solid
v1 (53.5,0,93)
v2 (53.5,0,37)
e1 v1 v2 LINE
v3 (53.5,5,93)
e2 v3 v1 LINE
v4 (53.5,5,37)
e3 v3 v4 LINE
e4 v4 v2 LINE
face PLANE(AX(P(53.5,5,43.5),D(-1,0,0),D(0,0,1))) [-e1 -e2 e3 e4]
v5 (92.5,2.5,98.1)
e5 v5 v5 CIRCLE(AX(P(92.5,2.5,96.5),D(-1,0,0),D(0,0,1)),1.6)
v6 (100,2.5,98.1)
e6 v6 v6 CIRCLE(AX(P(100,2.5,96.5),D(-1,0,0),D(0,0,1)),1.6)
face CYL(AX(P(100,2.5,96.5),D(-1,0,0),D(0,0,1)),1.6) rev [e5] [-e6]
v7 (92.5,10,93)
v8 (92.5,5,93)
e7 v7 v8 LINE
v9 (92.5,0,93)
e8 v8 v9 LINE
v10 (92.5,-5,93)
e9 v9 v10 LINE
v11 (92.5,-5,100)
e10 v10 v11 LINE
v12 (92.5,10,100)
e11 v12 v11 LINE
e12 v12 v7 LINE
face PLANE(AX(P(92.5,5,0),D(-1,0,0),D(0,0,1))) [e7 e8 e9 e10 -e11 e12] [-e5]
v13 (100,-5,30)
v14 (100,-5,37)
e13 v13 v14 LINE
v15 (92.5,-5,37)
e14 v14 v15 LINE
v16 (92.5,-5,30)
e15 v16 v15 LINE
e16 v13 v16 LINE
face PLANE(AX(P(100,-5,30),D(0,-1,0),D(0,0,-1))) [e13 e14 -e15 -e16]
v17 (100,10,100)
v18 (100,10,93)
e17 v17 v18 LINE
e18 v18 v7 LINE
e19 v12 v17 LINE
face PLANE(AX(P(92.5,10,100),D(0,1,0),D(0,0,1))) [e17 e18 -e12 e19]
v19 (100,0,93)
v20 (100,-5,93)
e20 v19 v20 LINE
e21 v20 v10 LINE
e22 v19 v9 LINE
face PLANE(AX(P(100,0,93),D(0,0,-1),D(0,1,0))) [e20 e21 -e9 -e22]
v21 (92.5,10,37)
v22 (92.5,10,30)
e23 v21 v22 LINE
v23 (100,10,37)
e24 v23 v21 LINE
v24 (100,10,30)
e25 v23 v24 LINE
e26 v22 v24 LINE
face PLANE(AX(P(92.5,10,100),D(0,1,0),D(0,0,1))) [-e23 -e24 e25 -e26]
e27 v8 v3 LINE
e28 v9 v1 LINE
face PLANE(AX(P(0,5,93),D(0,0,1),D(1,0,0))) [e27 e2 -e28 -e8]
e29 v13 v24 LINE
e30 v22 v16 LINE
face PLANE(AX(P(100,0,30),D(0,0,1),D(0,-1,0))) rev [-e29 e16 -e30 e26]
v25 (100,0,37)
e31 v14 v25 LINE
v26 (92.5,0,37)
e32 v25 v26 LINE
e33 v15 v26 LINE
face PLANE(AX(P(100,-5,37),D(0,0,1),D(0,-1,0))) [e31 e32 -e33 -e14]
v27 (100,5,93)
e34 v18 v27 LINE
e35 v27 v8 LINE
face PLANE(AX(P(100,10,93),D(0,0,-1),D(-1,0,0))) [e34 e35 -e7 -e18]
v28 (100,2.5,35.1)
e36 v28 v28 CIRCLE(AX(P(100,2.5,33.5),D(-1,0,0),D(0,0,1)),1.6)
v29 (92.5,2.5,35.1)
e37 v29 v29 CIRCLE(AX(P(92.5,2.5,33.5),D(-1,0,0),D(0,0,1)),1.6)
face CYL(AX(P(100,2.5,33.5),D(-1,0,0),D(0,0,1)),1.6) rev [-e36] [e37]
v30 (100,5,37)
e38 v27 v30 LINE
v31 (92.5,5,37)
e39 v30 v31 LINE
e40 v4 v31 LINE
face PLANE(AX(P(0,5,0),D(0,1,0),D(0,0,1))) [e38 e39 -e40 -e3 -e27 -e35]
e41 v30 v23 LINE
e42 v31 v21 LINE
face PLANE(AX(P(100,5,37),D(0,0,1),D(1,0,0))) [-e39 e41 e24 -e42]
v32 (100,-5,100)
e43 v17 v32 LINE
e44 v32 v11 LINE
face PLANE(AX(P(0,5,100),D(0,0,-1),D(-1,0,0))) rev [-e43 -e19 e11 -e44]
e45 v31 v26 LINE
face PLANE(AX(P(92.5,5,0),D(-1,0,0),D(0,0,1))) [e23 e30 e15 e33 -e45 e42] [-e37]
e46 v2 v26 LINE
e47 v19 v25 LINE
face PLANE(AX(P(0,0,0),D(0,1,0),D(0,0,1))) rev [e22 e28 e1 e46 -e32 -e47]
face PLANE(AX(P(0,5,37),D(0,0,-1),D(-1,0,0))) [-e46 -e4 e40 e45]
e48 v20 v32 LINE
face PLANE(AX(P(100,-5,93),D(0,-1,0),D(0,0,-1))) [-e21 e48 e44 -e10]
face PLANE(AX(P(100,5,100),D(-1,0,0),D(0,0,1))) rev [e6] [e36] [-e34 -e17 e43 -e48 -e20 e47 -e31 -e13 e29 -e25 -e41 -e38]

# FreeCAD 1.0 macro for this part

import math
import FreeCAD as App
import Part
import Sketcher
from FreeCAD import Vector


def add_polygon(sketch, points):
    """Adds a closed chain of lines whose ends are joined by coincident constraints."""
    first, n = sketch.GeometryCount, len(points)
    for a, b in zip(points, points[1:] + points[:1]):
        sketch.addGeometry(Part.LineSegment(App.Vector(*a, 0), App.Vector(*b, 0)), False)
    for i in range(n):
        sketch.addConstraint(Sketcher.Constraint("Coincident", first + i, 2, first + (i + 1) % n, 1))

doc = App.newDocument("Part")
params = doc.addObject("Spreadsheet::Sheet", "Params")
for row, (alias, value) in enumerate([
    ("sketch1_width", "100 mm"),
    ("pad1_length", "5 mm"),
    ("sketch2_width", "5 mm"),
    ("sketch2_height", "30 mm"),
    ("pocket1_length", "100 mm"),
    ("sketch3_height", "70 mm"),
    ("sketch3_width", "53.5 mm"),
    ("pocket2_length", "5 mm"),
    ("sketch4_width", "39 mm"),
    ("sketch4_height", "7 mm"),
    ("pocket3_length", "5 mm"),
    ("sketch5_height", "5 mm"),
    ("sketch5_width", "7.5 mm"),
    ("pad2_length", "70 mm"),
    ("sketch6_width", "5 mm"),
    ("sketch6_height", "56 mm"),
    ("pocket4_length", "7.5 mm"),
    ("sketch7_width", "5 mm"),
    ("sketch7_height", "7 mm"),
    ("pad3_length", "7.5 mm"),
    ("sketch8_radius", "1.6 mm"),
    ("pocket5_length", "7.5 mm"),
], start=1):
    params.set(f"A{row}", alias)
    params.set(f"B{row}", "=" + value)
    params.setAlias(f"B{row}", alias)

body = doc.addObject("PartDesign::Body", "Body")

# Sketch on XZ plane
sketch1 = body.newObject("Sketcher::SketchObject", "Sketch")
sketch1.AttachmentSupport = (doc.getObject("XZ_Plane"), [""])
sketch1.MapMode = "FlatFace"
add_polygon(sketch1, [(0, 0), (0, 100), (100, 100), (100, 0)])  # lines 0-3
sketch1.addConstraint(Sketcher.Constraint("Vertical", 0))
sketch1.addConstraint(Sketcher.Constraint("Horizontal", 1))
sketch1.addConstraint(Sketcher.Constraint("Vertical", 2))
sketch1.addConstraint(Sketcher.Constraint("Horizontal", 3))
sketch1.addConstraint(Sketcher.Constraint("Coincident", 3, 2, -1, 1))
sketch1.addConstraint(Sketcher.Constraint("Equal", 3, 0))
sketch1.addConstraint(Sketcher.Constraint("DistanceX", 1, 1, 1, 2, 100.0))
sketch1.setExpression("Constraints[10]", "Params.sketch1_width")
pad1 = body.newObject("PartDesign::Pad", "Pad")
pad1.Profile = sketch1
pad1.setExpression("Length", "Params.pad1_length")
pad1.Reversed = True

# Sketch on YZ plane
sketch2 = body.newObject("Sketcher::SketchObject", "Sketch001")
sketch2.AttachmentSupport = (doc.getObject("YZ_Plane"), [""])
sketch2.MapMode = "FlatFace"
add_polygon(sketch2, [(5, 0), (0, 0), (0, 30), (5, 30)])  # lines 0-3
sketch2.addConstraint(Sketcher.Constraint("Horizontal", 0))
sketch2.addConstraint(Sketcher.Constraint("Vertical", 1))
sketch2.addConstraint(Sketcher.Constraint("Horizontal", 2))
sketch2.addConstraint(Sketcher.Constraint("Vertical", 3))
sketch2.addConstraint(Sketcher.Constraint("Coincident", 0, 2, -1, 1))
sketch2.addConstraint(Sketcher.Constraint("DistanceX", 0, 2, 0, 1, 5.0))
sketch2.addConstraint(Sketcher.Constraint("DistanceY", 1, 1, 1, 2, 30.0))
sketch2.setExpression("Constraints[9]", "Params.sketch2_width")
sketch2.setExpression("Constraints[10]", "Params.sketch2_height")
pocket1 = body.newObject("PartDesign::Pocket", "Pocket")
pocket1.Profile = sketch2
pocket1.setExpression("Length", "Params.pocket1_length")
pocket1.Reversed = True

# Sketch on XZ plane
sketch3 = body.newObject("Sketcher::SketchObject", "Sketch002")
sketch3.AttachmentSupport = (doc.getObject("XZ_Plane"), [""])
sketch3.MapMode = "FlatFace"
add_polygon(sketch3, [(53.5, 30), (53.5, 100), (0, 100), (0, 30)])  # lines 0-3
sketch3.addConstraint(Sketcher.Constraint("Vertical", 0))
sketch3.addConstraint(Sketcher.Constraint("Horizontal", 1))
sketch3.addConstraint(Sketcher.Constraint("Vertical", 2))
sketch3.addConstraint(Sketcher.Constraint("Horizontal", 3))
sketch3.addConstraint(Sketcher.Constraint("PointOnObject", 1, 2, -2))
sketch3.addConstraint(Sketcher.Constraint("DistanceY", 0, 1, 0, 2, 70.0))
sketch3.addConstraint(Sketcher.Constraint("DistanceX", 1, 2, 1, 1, 53.5))
sketch3.addConstraint(Sketcher.Constraint("DistanceY", -1, 1, 0, 2, 100.0))
sketch3.setExpression("Constraints[9]", "Params.sketch3_height")
sketch3.setExpression("Constraints[10]", "Params.sketch3_width")
pocket2 = body.newObject("PartDesign::Pocket", "Pocket001")
pocket2.Profile = sketch3
pocket2.setExpression("Length", "Params.pocket2_length")

# Sketch on XZ plane
sketch4 = body.newObject("Sketcher::SketchObject", "Sketch003")
sketch4.AttachmentSupport = (doc.getObject("XZ_Plane"), [""])
sketch4.MapMode = "FlatFace"
add_polygon(sketch4, [(53.5, 37), (53.5, 30), (92.5, 30), (92.5, 37)])  # lines 0-3
add_polygon(sketch4, [(53.5, 100), (53.5, 93), (92.5, 93), (92.5, 100)])  # lines 4-7
sketch4.addConstraint(Sketcher.Constraint("Vertical", 0))
sketch4.addConstraint(Sketcher.Constraint("Horizontal", 1))
sketch4.addConstraint(Sketcher.Constraint("Vertical", 2))
sketch4.addConstraint(Sketcher.Constraint("Horizontal", 3))
sketch4.addConstraint(Sketcher.Constraint("Vertical", 4))
sketch4.addConstraint(Sketcher.Constraint("Horizontal", 5))
sketch4.addConstraint(Sketcher.Constraint("Vertical", 6))
sketch4.addConstraint(Sketcher.Constraint("Horizontal", 7))
sketch4.addConstraint(Sketcher.Constraint("Vertical", 3, 2, 4, 2))
sketch4.addConstraint(Sketcher.Constraint("Vertical", 2, 2, 5, 2))
sketch4.addConstraint(Sketcher.Constraint("Equal", 2, 4))
sketch4.addConstraint(Sketcher.Constraint("DistanceX", 1, 1, 1, 2, 39.0))
sketch4.addConstraint(Sketcher.Constraint("DistanceY", 0, 2, 0, 1, 7.0))
sketch4.addConstraint(Sketcher.Constraint("DistanceY", -1, 1, 0, 2, 30.0))
sketch4.addConstraint(Sketcher.Constraint("DistanceY", -1, 1, 4, 2, 93.0))
sketch4.addConstraint(Sketcher.Constraint("DistanceX", -1, 1, 0, 2, 53.5))
sketch4.setExpression("Constraints[19]", "Params.sketch4_width")
sketch4.setExpression("Constraints[20]", "Params.sketch4_height")
pocket3 = body.newObject("PartDesign::Pocket", "Pocket002")
pocket3.Profile = sketch4
pocket3.setExpression("Length", "Params.pocket3_length")

# Sketch on XY plane
sketch5 = body.newObject("Sketcher::SketchObject", "Sketch004")
sketch5.AttachmentSupport = (doc.getObject("XY_Plane"), [""])
sketch5.MapMode = "FlatFace"
sketch5.AttachmentOffset = App.Placement(Vector(0, 0, 30), App.Rotation())
add_polygon(sketch5, [(100, 10), (100, 5), (92.5, 5), (92.5, 10)])  # lines 0-3
sketch5.addConstraint(Sketcher.Constraint("Vertical", 0))
sketch5.addConstraint(Sketcher.Constraint("Horizontal", 1))
sketch5.addConstraint(Sketcher.Constraint("Vertical", 2))
sketch5.addConstraint(Sketcher.Constraint("Horizontal", 3))
sketch5.addConstraint(Sketcher.Constraint("DistanceY", 0, 2, 0, 1, 5.0))
sketch5.addConstraint(Sketcher.Constraint("DistanceX", 1, 2, 1, 1, 7.5))
sketch5.addConstraint(Sketcher.Constraint("DistanceX", -1, 1, 0, 2, 100.0))
sketch5.addConstraint(Sketcher.Constraint("DistanceY", -1, 1, 0, 2, 5.0))
sketch5.setExpression("Constraints[8]", "Params.sketch5_height")
sketch5.setExpression("Constraints[9]", "Params.sketch5_width")
pad2 = body.newObject("PartDesign::Pad", "Pad001")
pad2.Profile = sketch5
pad2.setExpression("Length", "Params.pad2_length")

# Sketch on YZ plane
sketch6 = body.newObject("Sketcher::SketchObject", "Sketch005")
sketch6.AttachmentSupport = (doc.getObject("YZ_Plane"), [""])
sketch6.MapMode = "FlatFace"
sketch6.AttachmentOffset = App.Placement(Vector(0, 0, 92.5), App.Rotation())
add_polygon(sketch6, [(10, 37), (5, 37), (5, 93), (10, 93)])  # lines 0-3
sketch6.addConstraint(Sketcher.Constraint("Horizontal", 0))
sketch6.addConstraint(Sketcher.Constraint("Vertical", 1))
sketch6.addConstraint(Sketcher.Constraint("Horizontal", 2))
sketch6.addConstraint(Sketcher.Constraint("Vertical", 3))
sketch6.addConstraint(Sketcher.Constraint("DistanceX", 0, 2, 0, 1, 5.0))
sketch6.addConstraint(Sketcher.Constraint("DistanceY", 1, 1, 1, 2, 56.0))
sketch6.addConstraint(Sketcher.Constraint("DistanceX", -1, 1, 0, 2, 5.0))
sketch6.addConstraint(Sketcher.Constraint("DistanceY", -1, 1, 0, 2, 37.0))
sketch6.setExpression("Constraints[8]", "Params.sketch6_width")
sketch6.setExpression("Constraints[9]", "Params.sketch6_height")
pocket4 = body.newObject("PartDesign::Pocket", "Pocket003")
pocket4.Profile = sketch6
pocket4.setExpression("Length", "Params.pocket4_length")
pocket4.Reversed = True

# Sketch on YZ plane
sketch7 = body.newObject("Sketcher::SketchObject", "Sketch006")
sketch7.AttachmentSupport = (doc.getObject("YZ_Plane"), [""])
sketch7.MapMode = "FlatFace"
sketch7.AttachmentOffset = App.Placement(Vector(0, 0, 92.5), App.Rotation())
add_polygon(sketch7, [(0, 30), (-5, 30), (-5, 37), (0, 37)])  # lines 0-3
add_polygon(sketch7, [(0, 93), (-5, 93), (-5, 100), (0, 100)])  # lines 4-7
sketch7.addConstraint(Sketcher.Constraint("Horizontal", 0))
sketch7.addConstraint(Sketcher.Constraint("Vertical", 1))
sketch7.addConstraint(Sketcher.Constraint("Horizontal", 2))
sketch7.addConstraint(Sketcher.Constraint("Vertical", 3))
sketch7.addConstraint(Sketcher.Constraint("Horizontal", 4))
sketch7.addConstraint(Sketcher.Constraint("Vertical", 5))
sketch7.addConstraint(Sketcher.Constraint("Horizontal", 6))
sketch7.addConstraint(Sketcher.Constraint("Vertical", 7))
sketch7.addConstraint(Sketcher.Constraint("PointOnObject", 2, 2, -2))
sketch7.addConstraint(Sketcher.Constraint("PointOnObject", 6, 2, -2))
sketch7.addConstraint(Sketcher.Constraint("Vertical", 1, 2, 4, 2))
sketch7.addConstraint(Sketcher.Constraint("Equal", 3, 5))
sketch7.addConstraint(Sketcher.Constraint("DistanceX", 0, 2, 0, 1, 5.0))
sketch7.addConstraint(Sketcher.Constraint("DistanceY", 1, 1, 1, 2, 7.0))
sketch7.addConstraint(Sketcher.Constraint("DistanceY", -1, 1, 0, 2, 30.0))
sketch7.addConstraint(Sketcher.Constraint("DistanceY", -1, 1, 4, 2, 93.0))
sketch7.setExpression("Constraints[20]", "Params.sketch7_width")
sketch7.setExpression("Constraints[21]", "Params.sketch7_height")
pad3 = body.newObject("PartDesign::Pad", "Pad002")
pad3.Profile = sketch7
pad3.setExpression("Length", "Params.pad3_length")

# Sketch on YZ plane
sketch8 = body.newObject("Sketcher::SketchObject", "Sketch007")
sketch8.AttachmentSupport = (doc.getObject("YZ_Plane"), [""])
sketch8.MapMode = "FlatFace"
sketch8.AttachmentOffset = App.Placement(Vector(0, 0, 92.5), App.Rotation())
sketch8.addGeometry(Part.ArcOfCircle(Part.Circle(Vector(2.5, 33.5, 0), Vector(0, 0, 1), 1.6), math.radians(125.537678), math.radians(305.537678)), False)
sketch8.addGeometry(Part.ArcOfCircle(Part.Circle(Vector(2.5, 33.5, 0), Vector(0, 0, 1), 1.6), math.radians(90), math.radians(125.537678)), False)
sketch8.addGeometry(Part.ArcOfCircle(Part.Circle(Vector(2.5, 33.5, 0), Vector(0, 0, 1), 1.6), math.radians(-54.462322), math.radians(90)), False)
sketch8.addGeometry(Part.ArcOfCircle(Part.Circle(Vector(2.5, 96.5, 0), Vector(0, 0, 1), 1.6), math.radians(-54.462322), math.radians(90)), False)
sketch8.addGeometry(Part.ArcOfCircle(Part.Circle(Vector(2.5, 96.5, 0), Vector(0, 0, 1), 1.6), math.radians(125.537678), math.radians(305.537678)), False)
sketch8.addGeometry(Part.ArcOfCircle(Part.Circle(Vector(2.5, 96.5, 0), Vector(0, 0, 1), 1.6), math.radians(90), math.radians(125.537678)), False)
sketch8.addConstraint(Sketcher.Constraint("Tangent", 0, 1, 1, 2))
sketch8.addConstraint(Sketcher.Constraint("Tangent", 1, 1, 2, 2))
sketch8.addConstraint(Sketcher.Constraint("Tangent", 2, 1, 0, 2))
sketch8.addConstraint(Sketcher.Constraint("Tangent", 3, 1, 4, 2))
sketch8.addConstraint(Sketcher.Constraint("Tangent", 4, 1, 5, 2))
sketch8.addConstraint(Sketcher.Constraint("Tangent", 5, 1, 3, 2))
sketch8.addConstraint(Sketcher.Constraint("Equal", 2, 3))
sketch8.addConstraint(Sketcher.Constraint("Vertical", 2, 3, 3, 3))
sketch8.addConstraint(Sketcher.Constraint("Vertical", 5, 3, 1, 1))
sketch8.addConstraint(Sketcher.Constraint("Vertical", 2, 1, 3, 1))
sketch8.addConstraint(Sketcher.Constraint("Vertical", 0, 1, 4, 1))
sketch8.addConstraint(Sketcher.Constraint("Vertical", 1, 1, 5, 1))
sketch8.addConstraint(Sketcher.Constraint("Radius", 0, 1.6))
sketch8.addConstraint(Sketcher.Constraint("DistanceY", 1, 3, 3, 3, 63.0))
sketch8.addConstraint(Sketcher.Constraint("DistanceX", -1, 1, 0, 3, 2.5))
sketch8.addConstraint(Sketcher.Constraint("DistanceY", -1, 1, 0, 3, 33.5))
sketch8.addConstraint(Sketcher.Constraint("DistanceX", -1, 1, 0, 1, 1.570019))
sketch8.addConstraint(Sketcher.Constraint("DistanceX", -1, 1, 2, 1, 3.429981))
sketch8.setExpression("Constraints[12]", "Params.sketch8_radius")
pocket5 = body.newObject("PartDesign::Pocket", "Pocket004")
pocket5.Profile = sketch8
pocket5.setExpression("Length", "Params.pocket5_length")
pocket5.Reversed = True

doc.recompute()
